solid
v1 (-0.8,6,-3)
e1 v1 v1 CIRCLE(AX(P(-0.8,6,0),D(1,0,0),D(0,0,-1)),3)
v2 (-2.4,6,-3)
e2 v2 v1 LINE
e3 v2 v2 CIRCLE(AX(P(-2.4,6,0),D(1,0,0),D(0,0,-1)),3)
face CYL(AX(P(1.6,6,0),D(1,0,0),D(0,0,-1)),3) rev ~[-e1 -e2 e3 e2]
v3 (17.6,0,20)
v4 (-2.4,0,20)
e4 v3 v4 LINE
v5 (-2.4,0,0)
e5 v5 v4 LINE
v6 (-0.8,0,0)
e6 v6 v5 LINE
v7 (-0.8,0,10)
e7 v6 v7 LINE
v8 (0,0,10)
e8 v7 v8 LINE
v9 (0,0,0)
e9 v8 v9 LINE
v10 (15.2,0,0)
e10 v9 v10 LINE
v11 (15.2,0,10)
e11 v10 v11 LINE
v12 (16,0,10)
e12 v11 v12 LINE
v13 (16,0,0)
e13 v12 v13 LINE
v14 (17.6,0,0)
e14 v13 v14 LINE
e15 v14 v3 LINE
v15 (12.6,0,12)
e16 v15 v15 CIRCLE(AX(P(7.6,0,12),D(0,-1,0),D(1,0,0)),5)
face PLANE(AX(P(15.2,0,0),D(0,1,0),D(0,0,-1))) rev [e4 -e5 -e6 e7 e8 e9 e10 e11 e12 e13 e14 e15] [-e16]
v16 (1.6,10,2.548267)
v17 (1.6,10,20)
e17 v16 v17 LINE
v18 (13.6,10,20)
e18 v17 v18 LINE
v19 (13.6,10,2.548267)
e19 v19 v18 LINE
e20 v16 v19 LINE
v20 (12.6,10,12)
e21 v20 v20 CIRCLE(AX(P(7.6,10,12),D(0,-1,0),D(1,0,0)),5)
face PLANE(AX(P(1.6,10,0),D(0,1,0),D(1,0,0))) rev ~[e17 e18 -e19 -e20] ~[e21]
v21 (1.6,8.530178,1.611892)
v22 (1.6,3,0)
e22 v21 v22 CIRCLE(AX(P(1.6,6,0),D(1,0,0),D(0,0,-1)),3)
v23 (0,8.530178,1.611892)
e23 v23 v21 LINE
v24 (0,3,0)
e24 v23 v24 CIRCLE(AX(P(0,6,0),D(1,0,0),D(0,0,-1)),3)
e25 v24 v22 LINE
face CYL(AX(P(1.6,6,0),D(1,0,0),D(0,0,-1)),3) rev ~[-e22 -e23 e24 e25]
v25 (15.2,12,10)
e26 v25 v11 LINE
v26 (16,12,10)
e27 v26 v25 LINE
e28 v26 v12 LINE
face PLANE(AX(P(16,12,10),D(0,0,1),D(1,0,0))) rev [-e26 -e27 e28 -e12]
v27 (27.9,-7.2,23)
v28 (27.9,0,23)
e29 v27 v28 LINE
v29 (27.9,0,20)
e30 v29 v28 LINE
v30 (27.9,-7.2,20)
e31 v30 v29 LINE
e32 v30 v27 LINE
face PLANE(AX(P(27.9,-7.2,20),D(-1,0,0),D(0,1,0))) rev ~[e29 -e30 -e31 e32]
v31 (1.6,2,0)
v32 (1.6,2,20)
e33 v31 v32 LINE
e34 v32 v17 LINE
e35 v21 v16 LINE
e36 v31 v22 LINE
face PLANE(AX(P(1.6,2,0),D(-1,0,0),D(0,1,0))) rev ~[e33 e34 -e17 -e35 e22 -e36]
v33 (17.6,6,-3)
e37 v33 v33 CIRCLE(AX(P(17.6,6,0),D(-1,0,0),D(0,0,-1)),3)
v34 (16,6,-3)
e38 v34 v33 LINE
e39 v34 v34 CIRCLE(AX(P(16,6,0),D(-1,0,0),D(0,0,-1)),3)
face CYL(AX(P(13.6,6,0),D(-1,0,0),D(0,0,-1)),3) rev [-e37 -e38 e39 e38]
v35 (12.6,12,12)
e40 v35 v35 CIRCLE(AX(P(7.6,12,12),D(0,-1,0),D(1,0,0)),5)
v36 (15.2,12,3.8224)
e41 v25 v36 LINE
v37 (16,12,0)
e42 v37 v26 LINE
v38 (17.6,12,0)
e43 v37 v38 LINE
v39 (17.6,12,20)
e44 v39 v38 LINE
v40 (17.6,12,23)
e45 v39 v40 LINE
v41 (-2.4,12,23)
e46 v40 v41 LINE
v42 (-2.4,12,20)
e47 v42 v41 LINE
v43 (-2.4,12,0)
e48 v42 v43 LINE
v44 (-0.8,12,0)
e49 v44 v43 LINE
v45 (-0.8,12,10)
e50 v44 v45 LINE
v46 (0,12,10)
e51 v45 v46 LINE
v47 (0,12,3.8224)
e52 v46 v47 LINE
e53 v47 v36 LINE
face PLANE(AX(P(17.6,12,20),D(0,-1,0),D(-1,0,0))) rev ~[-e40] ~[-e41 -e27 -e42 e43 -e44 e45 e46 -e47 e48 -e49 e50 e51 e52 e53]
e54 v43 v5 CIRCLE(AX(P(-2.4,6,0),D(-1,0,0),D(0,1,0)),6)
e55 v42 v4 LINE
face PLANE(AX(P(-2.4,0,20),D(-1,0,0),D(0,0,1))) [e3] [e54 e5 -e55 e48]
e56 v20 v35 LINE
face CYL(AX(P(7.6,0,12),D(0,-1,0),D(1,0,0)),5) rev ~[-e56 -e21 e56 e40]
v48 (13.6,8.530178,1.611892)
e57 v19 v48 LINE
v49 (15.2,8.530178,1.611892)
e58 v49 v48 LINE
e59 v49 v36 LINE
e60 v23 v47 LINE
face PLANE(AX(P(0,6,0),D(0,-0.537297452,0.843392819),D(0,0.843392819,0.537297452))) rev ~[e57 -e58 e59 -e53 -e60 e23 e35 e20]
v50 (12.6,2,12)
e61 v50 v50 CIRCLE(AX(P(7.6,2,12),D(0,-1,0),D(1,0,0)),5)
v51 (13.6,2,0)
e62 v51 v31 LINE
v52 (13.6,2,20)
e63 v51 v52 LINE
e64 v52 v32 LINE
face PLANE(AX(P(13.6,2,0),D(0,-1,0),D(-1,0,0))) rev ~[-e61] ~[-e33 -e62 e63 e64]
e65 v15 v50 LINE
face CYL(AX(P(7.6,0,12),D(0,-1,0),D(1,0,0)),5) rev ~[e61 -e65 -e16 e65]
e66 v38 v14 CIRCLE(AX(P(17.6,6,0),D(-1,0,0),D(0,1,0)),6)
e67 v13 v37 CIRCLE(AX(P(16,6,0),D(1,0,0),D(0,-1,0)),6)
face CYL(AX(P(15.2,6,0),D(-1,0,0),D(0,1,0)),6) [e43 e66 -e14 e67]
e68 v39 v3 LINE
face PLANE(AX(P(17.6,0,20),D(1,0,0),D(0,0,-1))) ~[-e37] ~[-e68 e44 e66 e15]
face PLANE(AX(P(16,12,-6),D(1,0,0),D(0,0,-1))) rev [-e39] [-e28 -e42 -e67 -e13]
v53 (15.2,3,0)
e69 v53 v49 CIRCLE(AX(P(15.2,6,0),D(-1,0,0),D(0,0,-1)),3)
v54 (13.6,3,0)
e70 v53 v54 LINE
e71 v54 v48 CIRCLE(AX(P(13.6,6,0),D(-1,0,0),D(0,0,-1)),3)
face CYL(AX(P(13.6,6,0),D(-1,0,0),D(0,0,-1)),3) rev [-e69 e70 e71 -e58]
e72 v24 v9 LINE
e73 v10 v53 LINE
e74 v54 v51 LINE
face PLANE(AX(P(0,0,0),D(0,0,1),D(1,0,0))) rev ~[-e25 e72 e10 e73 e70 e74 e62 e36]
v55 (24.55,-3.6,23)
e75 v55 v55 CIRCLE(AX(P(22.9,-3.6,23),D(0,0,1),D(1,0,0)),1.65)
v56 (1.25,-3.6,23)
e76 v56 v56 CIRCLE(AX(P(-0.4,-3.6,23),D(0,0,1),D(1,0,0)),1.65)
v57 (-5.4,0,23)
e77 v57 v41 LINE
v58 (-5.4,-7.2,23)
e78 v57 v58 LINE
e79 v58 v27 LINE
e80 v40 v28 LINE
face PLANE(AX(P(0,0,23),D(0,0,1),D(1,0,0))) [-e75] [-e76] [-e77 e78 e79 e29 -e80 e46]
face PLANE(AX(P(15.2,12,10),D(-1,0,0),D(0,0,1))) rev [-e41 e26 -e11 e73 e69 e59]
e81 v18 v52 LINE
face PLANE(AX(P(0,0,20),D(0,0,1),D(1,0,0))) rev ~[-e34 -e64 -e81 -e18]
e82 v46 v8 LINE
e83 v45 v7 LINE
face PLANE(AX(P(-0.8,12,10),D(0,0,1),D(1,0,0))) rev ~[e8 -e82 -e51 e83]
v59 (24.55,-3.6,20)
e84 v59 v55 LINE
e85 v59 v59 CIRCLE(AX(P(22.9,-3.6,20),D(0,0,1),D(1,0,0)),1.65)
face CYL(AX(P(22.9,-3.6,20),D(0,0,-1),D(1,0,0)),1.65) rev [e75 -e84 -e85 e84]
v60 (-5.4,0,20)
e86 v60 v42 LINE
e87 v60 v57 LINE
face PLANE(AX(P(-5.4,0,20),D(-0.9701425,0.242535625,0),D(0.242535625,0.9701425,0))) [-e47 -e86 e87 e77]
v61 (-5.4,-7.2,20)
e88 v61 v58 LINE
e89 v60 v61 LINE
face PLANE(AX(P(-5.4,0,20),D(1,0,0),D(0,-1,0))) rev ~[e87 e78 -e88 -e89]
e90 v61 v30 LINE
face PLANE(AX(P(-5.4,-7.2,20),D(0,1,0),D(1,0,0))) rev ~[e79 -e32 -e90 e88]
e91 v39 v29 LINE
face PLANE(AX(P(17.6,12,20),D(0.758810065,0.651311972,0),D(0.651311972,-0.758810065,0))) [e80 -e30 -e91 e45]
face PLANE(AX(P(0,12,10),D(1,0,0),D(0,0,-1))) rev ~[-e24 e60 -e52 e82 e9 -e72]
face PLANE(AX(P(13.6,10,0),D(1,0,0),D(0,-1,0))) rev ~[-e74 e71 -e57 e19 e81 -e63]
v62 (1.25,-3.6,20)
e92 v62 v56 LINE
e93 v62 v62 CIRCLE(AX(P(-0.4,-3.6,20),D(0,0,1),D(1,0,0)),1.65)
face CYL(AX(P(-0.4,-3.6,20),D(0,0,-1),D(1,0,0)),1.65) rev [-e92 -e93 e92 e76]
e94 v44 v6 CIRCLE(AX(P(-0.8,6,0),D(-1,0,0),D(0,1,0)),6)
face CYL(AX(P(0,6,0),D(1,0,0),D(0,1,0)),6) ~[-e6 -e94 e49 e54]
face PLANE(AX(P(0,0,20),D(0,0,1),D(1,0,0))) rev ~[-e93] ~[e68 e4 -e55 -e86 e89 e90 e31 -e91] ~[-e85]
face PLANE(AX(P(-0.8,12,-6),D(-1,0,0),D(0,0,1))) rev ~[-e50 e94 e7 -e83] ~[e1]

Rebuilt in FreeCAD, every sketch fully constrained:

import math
import FreeCAD as App
import Part
import Sketcher
from FreeCAD import Vector
Q = App.Units.Quantity

doc = App.newDocument("Part")
body = doc.addObject("PartDesign::Body", "Body")

# Sketch on XY plane
sketch1 = doc.addObject("Sketcher::SketchObject", "Sketch")
body.addObject(sketch1)
sketch1.AttachmentSupport = (doc.XY_Plane, [""])
sketch1.MapMode = "FlatFace"
sketch1.addGeometry([
    Part.LineSegment(Vector(0, 12, 0), Vector(0, 0, 0)),  # 0
    Part.LineSegment(Vector(0, 0, 0), Vector(15, 0, 0)),  # 1
    Part.LineSegment(Vector(15, 0, 0), Vector(15, 12, 0)),  # 2
    Part.LineSegment(Vector(15, 12, 0), Vector(0, 12, 0)),  # 3
    Part.LineSegment(Vector(2, 2, 0), Vector(2, 10, 0)),  # 4
    Part.LineSegment(Vector(2, 10, 0), Vector(14, 10, 0)),  # 5
    Part.LineSegment(Vector(14, 10, 0), Vector(14, 2, 0)),  # 6
    Part.LineSegment(Vector(14, 2, 0), Vector(2, 2, 0)),  # 7
], False)
sketch1.addConstraint([
    Sketcher.Constraint("Coincident", 0, 2, 1, 1),
    Sketcher.Constraint("Coincident", 1, 2, 2, 1),
    Sketcher.Constraint("Coincident", 2, 2, 3, 1),
    Sketcher.Constraint("Coincident", 3, 2, 0, 1),
    Sketcher.Constraint("Coincident", 4, 2, 5, 1),
    Sketcher.Constraint("Coincident", 5, 2, 6, 1),
    Sketcher.Constraint("Coincident", 6, 2, 7, 1),
    Sketcher.Constraint("Coincident", 7, 2, 4, 1),
    Sketcher.Constraint("Vertical", 0),
    Sketcher.Constraint("Horizontal", 1),
    Sketcher.Constraint("Vertical", 2),
    Sketcher.Constraint("Horizontal", 3),
    Sketcher.Constraint("Vertical", 4),
    Sketcher.Constraint("Horizontal", 5),
    Sketcher.Constraint("Vertical", 6),
    Sketcher.Constraint("Horizontal", 7),
    Sketcher.Constraint("Coincident", 0, 2, -1, 1),
    Sketcher.Constraint("Equal", 7, 0),
    Sketcher.Constraint("DistanceX", 5, 1, 5, 2, 12.0),
    Sketcher.Constraint("DistanceX", 1, 1, 1, 2, 15.2),
    Sketcher.Constraint("DistanceY", -1, 1, 6, 2, 2.0),
    Sketcher.Constraint("DistanceY", 4, 2, 3, 2, 2.0),
    Sketcher.Constraint("DistanceX", -1, 1, 4, 2, 1.6),
])
pad1 = doc.addObject("PartDesign::Pad", "Pad")
body.addObject(pad1)
pad1.Profile = sketch1
pad1.Length = 20

# Sketch on YZ plane
sketch2 = doc.addObject("Sketcher::SketchObject", "Sketch001")
body.addObject(sketch2)
sketch2.AttachmentSupport = (doc.YZ_Plane, [""])
sketch2.MapMode = "FlatFace"
sketch2.addGeometry([
    Part.LineSegment(Vector(12, 3.8, 0), Vector(6, 0, 0)),
    Part.LineSegment(Vector(6, 0, 0), Vector(12, 0, 0)),
    Part.LineSegment(Vector(12, 0, 0), Vector(12, 3.8, 0)),
], False)
sketch2.addConstraint([
    Sketcher.Constraint("Coincident", 0, 2, 1, 1),
    Sketcher.Constraint("Coincident", 1, 2, 2, 1),
    Sketcher.Constraint("Coincident", 2, 2, 0, 1),
    Sketcher.Constraint("Horizontal", 1),
    Sketcher.Constraint("Vertical", 2),
    Sketcher.Constraint("PointOnObject", 0, 2, -1),
    Sketcher.Constraint("DistanceX", 1, 1, 1, 2, 6.0),
    Sketcher.Constraint("DistanceX", -1, 1, 0, 2, 6.0),
    Sketcher.Constraint("Angle", 0, Q("-147.5001 deg")),
])
pocket1 = doc.addObject("PartDesign::Pocket", "Pocket")
body.addObject(pocket1)
pocket1.Profile = sketch2
pocket1.Type = "ThroughAll"
pocket1.Reversed = True

# Sketch on YZ plane
sketch3 = doc.addObject("Sketcher::SketchObject", "Sketch002")
body.addObject(sketch3)
sketch3.AttachmentSupport = (doc.YZ_Plane, [""])
sketch3.MapMode = "FlatFace"
sketch3.addGeometry([
    Part.ArcOfCircle(Part.Circle(Vector(6, 0, 0), Vector(0, 0, 1), 6), math.radians(180), math.radians(360)),
    Part.LineSegment(Vector(0, 0, 0), Vector(0, 20, 0)),
    Part.LineSegment(Vector(0, 20, 0), Vector(12, 20, 0)),
    Part.LineSegment(Vector(12, 20, 0), Vector(12, 0, 0)),
], False)
sketch3.addConstraint([
    Sketcher.Constraint("Tangent", 0, 1, 1, 1),
    Sketcher.Constraint("Coincident", 1, 2, 2, 1),
    Sketcher.Constraint("Coincident", 2, 2, 3, 1),
    Sketcher.Constraint("Tangent", 3, 2, 0, 2),
    Sketcher.Constraint("Vertical", 1),
    Sketcher.Constraint("Horizontal", 2),
    Sketcher.Constraint("Vertical", 3),
    Sketcher.Constraint("Coincident", 0, 1, -1, 1),
    Sketcher.Constraint("Radius", 0, 6.0),
    Sketcher.Constraint("DistanceY", 1, 1, 1, 2, 20.0),
])
pad2 = doc.addObject("PartDesign::Pad", "Pad001")
body.addObject(pad2)
pad2.Profile = sketch3
pad2.Length = 2.4
pad2.Reversed = True

# Sketch on YZ plane
sketch4 = doc.addObject("Sketcher::SketchObject", "Sketch003")
body.addObject(sketch4)
sketch4.AttachmentSupport = (doc.YZ_Plane, [""])
sketch4.MapMode = "FlatFace"
sketch4.AttachmentOffset = App.Placement(Vector(0, 0, 1.6), App.Rotation())
sketch4.addGeometry(Part.Circle(Vector(6, 0, 0), Vector(0, 0, 1), 3), False)
sketch4.addConstraint([
    Sketcher.Constraint("PointOnObject", 0, 3, -1),
    Sketcher.Constraint("Diameter", 0, 6.0),
    Sketcher.Constraint("DistanceX", -1, 1, 0, 3, 6.0),
])
pocket2 = doc.addObject("PartDesign::Pocket", "Pocket001")
body.addObject(pocket2)
pocket2.Profile = sketch4
pocket2.Type = "ThroughAll"
pocket2.Midplane = True

# Sketch on XZ plane
sketch5 = doc.addObject("Sketcher::SketchObject", "Sketch004")
body.addObject(sketch5)
sketch5.AttachmentSupport = (doc.XZ_Plane, [""])
sketch5.MapMode = "FlatFace"
sketch5.AttachmentOffset = App.Placement(Vector(0, 0, -12), App.Rotation())
sketch5.addGeometry([
    Part.LineSegment(Vector(0, 10, 0), Vector(0, -6, 0)),
    Part.LineSegment(Vector(0, -6, 0), Vector(-0.8, -6, 0)),
    Part.LineSegment(Vector(-0.8, -6, 0), Vector(-0.8, 10, 0)),
    Part.LineSegment(Vector(-0.8, 10, 0), Vector(0, 10, 0)),
], False)
sketch5.addConstraint([
    Sketcher.Constraint("Coincident", 0, 2, 1, 1),
    Sketcher.Constraint("Coincident", 1, 2, 2, 1),
    Sketcher.Constraint("Coincident", 2, 2, 3, 1),
    Sketcher.Constraint("Coincident", 3, 2, 0, 1),
    Sketcher.Constraint("Vertical", 0),
    Sketcher.Constraint("Horizontal", 1),
    Sketcher.Constraint("Vertical", 2),
    Sketcher.Constraint("Horizontal", 3),
    Sketcher.Constraint("PointOnObject", 0, 2, -2),
    Sketcher.Constraint("DistanceX", 1, 2, 1, 1, 0.8),
    Sketcher.Constraint("DistanceY", -1, 1, 2, 2, 10.0),
    Sketcher.Constraint("DistanceY", 0, 2, 0, 1, 16.0),
])
pocket3 = doc.addObject("PartDesign::Pocket", "Pocket002")
body.addObject(pocket3)
pocket3.Profile = sketch5
pocket3.Type = "ThroughAll"
pocket3.Reversed = True
doc.recompute()

datumplane = doc.addObject("PartDesign::Plane", "DatumPlane")
body.addObject(datumplane)
datumplane.AttachmentSupport = (doc.YZ_Plane, [""])
datumplane.MapMode = "FlatFace"
datumplane.AttachmentOffset = App.Placement(Vector(0, 0, 7.6), App.Rotation())
mirrored = doc.addObject("PartDesign::Mirrored", "Mirrored")
body.addObject(mirrored)
mirrored.Originals = [pad2, pocket2, pocket3]
mirrored.MirrorPlane = (datumplane, [""])
body.Tip = mirrored

# Sketch on XY plane
sketch6 = doc.addObject("Sketcher::SketchObject", "Sketch005")
body.addObject(sketch6)
sketch6.AttachmentSupport = (doc.XY_Plane, [""])
sketch6.MapMode = "FlatFace"
sketch6.AttachmentOffset = App.Placement(Vector(0, 0, 20), App.Rotation())
sketch6.addGeometry([
    Part.LineSegment(Vector(-2.4, 12, 0), Vector(-5.4, 0, 0)),  # 0
    Part.LineSegment(Vector(-5.4, 0, 0), Vector(-5.4, -7.2, 0)),  # 1
    Part.LineSegment(Vector(-5.4, -7.2, 0), Vector(27.9, -7.2, 0)),  # 2
    Part.LineSegment(Vector(27.9, -7.2, 0), Vector(27.9, 0, 0)),  # 3
    Part.LineSegment(Vector(27.9, 0, 0), Vector(17.6, 12, 0)),  # 4
    Part.LineSegment(Vector(17.6, 12, 0), Vector(-2.4, 12, 0)),  # 5
    Part.Circle(Vector(-0.4, -3.6, 0), Vector(0, 0, 1), 1.6),  # 6
    Part.Circle(Vector(22.9, -3.6, 0), Vector(0, 0, 1), 1.6),  # 7
], False)
sketch6.addConstraint([
    Sketcher.Constraint("Coincident", 0, 2, 1, 1),
    Sketcher.Constraint("Coincident", 1, 2, 2, 1),
    Sketcher.Constraint("Coincident", 2, 2, 3, 1),
    Sketcher.Constraint("Coincident", 3, 2, 4, 1),
    Sketcher.Constraint("Coincident", 4, 2, 5, 1),
    Sketcher.Constraint("Coincident", 5, 2, 0, 1),
    Sketcher.Constraint("Vertical", 1),
    Sketcher.Constraint("Horizontal", 2),
    Sketcher.Constraint("Vertical", 3),
    Sketcher.Constraint("Horizontal", 5),
    Sketcher.Constraint("Equal", 6, 7),
    Sketcher.Constraint("PointOnObject", 0, 2, -1),
    Sketcher.Constraint("PointOnObject", 3, 2, -1),
    Sketcher.Constraint("Horizontal", 6, 3, 7, 3),
    Sketcher.Constraint("Diameter", 6, 3.3),
    Sketcher.Constraint("DistanceY", 1, 2, 1, 1, 7.2),
    Sketcher.Constraint("DistanceX", 0, 2, 6, 3, 5.0),
    Sketcher.Constraint("DistanceX", 7, 3, 2, 2, 5.0),
    Sketcher.Constraint("DistanceX", 5, 2, 5, 1, 20.0),
    Sketcher.Constraint("DistanceX", 2, 1, 2, 2, 33.3),
    Sketcher.Constraint("DistanceY", -1, 1, 4, 2, 12.0),
    Sketcher.Constraint("DistanceX", 6, 3, 4, 2, 18.0),
    Sketcher.Constraint("DistanceX", 6, 3, -1, 1, 0.4),
    Sketcher.Constraint("DistanceY", 6, 3, -1, 1, 3.6),
])
pad3 = doc.addObject("PartDesign::Pad", "Pad002")
body.addObject(pad3)
pad3.Profile = sketch6
pad3.Length = 3

# Sketch on XZ plane
sketch7 = doc.addObject("Sketcher::SketchObject", "Sketch006")
body.addObject(sketch7)
sketch7.AttachmentSupport = (doc.XZ_Plane, [""])
sketch7.MapMode = "FlatFace"
sketch7.addGeometry(Part.Circle(Vector(8, 12, 0), Vector(0, 0, 1), 5), False)
sketch7.addConstraint([
    Sketcher.Constraint("Diameter", 0, 10.0),
    Sketcher.Constraint("DistanceY", -1, 1, 0, 3, 12.0),
    Sketcher.Constraint("DistanceX", -1, 1, 0, 3, 7.6),
])
pocket4 = doc.addObject("PartDesign::Pocket", "Pocket003")
body.addObject(pocket4)
pocket4.Profile = sketch7
pocket4.Type = "ThroughAll"

doc.recompute()
